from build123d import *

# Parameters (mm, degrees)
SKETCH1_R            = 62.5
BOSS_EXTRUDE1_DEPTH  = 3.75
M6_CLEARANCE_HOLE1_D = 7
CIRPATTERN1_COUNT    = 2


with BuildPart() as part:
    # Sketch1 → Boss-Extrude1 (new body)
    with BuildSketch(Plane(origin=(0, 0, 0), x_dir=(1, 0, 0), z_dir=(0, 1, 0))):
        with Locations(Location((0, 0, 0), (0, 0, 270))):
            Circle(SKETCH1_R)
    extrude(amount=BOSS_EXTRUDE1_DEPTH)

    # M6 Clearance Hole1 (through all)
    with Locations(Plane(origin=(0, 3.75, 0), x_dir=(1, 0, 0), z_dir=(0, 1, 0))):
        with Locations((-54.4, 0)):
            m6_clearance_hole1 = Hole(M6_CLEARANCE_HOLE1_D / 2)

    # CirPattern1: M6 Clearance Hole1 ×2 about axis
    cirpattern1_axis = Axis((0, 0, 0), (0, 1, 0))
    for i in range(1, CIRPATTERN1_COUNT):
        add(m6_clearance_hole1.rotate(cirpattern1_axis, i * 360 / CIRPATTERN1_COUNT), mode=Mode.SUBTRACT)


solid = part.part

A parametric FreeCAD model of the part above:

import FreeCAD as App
import Part
import Sketcher
Q = App.Units.Quantity

doc = App.newDocument("Part")
body = doc.addObject("PartDesign::Body", "Body")

# Sketch on XZ plane
sketch1 = doc.addObject("Sketcher::SketchObject", "Sketch")
body.addObject(sketch1)
sketch1.AttachmentSupport = (doc.XZ_Plane, [""])
sketch1.MapMode = "FlatFace"
sketch1.addGeometry(Part.Circle(App.Vector(0, 0, 0), App.Vector(0, 0, 1), 62), False)
sketch1.addConstraint(Sketcher.Constraint("Coincident", 0, 3, -1, 1))
sketch1.addConstraint(Sketcher.Constraint("Diameter", 0, Q("125 mm")))
pad1 = doc.addObject("PartDesign::Pad", "Pad")
body.addObject(pad1)
pad1.Profile = sketch1
pad1.Length = 3.75
pad1.Reversed = True

# Sketch on XZ plane
sketch2 = doc.addObject("Sketcher::SketchObject", "Sketch001")
body.addObject(sketch2)
sketch2.AttachmentSupport = (doc.XZ_Plane, [""])
sketch2.MapMode = "FlatFace"
sketch2.AttachmentOffset = App.Placement(App.Vector(0, 0, -3.75), App.Rotation())
sketch2.addGeometry(Part.Circle(App.Vector(-54.4, 0, 0), App.Vector(0, 0, 1), 3.5), False)
sketch2.addConstraint(Sketcher.Constraint("PointOnObject", 0, 3, -1))
sketch2.addConstraint(Sketcher.Constraint("Diameter", 0, Q("7 mm")))
sketch2.addConstraint(Sketcher.Constraint("DistanceX", 0, 3, -1, 1, Q("54.4 mm")))
doc.recompute()
hole = doc.addObject("PartDesign::Hole", "Hole")
body.addObject(hole)
hole.Profile = sketch2
hole.ThreadType = "None"
hole.Diameter = 7
hole.DepthType = "ThroughAll"
hole.Reversed = True
doc.recompute()

polarpattern = doc.addObject("PartDesign::PolarPattern", "PolarPattern")
body.addObject(polarpattern)
polarpattern.Originals = [hole]
polarpattern.Axis = (doc.Y_Axis, [""])
polarpattern.Angle = 360
polarpattern.Occurrences = 2
body.Tip = polarpattern

doc.recompute()
